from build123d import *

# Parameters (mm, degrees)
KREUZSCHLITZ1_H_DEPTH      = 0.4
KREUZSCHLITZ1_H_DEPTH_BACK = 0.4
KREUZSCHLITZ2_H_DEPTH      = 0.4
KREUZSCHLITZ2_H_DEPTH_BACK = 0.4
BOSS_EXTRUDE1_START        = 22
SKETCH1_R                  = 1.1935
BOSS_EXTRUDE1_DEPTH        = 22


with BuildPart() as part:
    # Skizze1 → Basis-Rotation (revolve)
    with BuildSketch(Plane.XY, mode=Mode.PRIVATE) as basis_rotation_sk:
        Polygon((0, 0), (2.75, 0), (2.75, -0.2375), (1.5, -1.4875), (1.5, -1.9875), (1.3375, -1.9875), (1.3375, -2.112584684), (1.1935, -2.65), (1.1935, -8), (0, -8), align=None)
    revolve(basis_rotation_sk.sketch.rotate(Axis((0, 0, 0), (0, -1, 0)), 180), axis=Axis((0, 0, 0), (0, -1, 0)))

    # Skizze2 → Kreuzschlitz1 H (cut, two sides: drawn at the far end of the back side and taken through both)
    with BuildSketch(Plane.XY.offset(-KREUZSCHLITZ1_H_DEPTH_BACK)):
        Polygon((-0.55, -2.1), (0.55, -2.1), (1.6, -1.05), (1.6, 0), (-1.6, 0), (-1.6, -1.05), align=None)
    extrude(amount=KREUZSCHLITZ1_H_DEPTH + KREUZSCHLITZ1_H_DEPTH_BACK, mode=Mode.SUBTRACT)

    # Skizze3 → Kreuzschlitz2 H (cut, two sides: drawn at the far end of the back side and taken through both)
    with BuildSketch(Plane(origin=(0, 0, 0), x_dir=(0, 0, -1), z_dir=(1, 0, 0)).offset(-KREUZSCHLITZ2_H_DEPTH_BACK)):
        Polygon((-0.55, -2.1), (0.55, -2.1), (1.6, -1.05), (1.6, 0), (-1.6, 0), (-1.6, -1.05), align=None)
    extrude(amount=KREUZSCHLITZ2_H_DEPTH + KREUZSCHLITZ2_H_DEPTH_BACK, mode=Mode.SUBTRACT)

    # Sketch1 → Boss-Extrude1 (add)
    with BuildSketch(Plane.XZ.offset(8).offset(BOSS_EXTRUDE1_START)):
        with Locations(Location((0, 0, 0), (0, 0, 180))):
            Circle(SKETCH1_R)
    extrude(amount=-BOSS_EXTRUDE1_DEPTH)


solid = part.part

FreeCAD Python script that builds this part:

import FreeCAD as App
import Part
import Sketcher
Q = App.Units.Quantity


def add_polygon(sketch, points):
    """Adds a closed chain of lines whose ends are joined by coincident constraints."""
    first, n = sketch.GeometryCount, len(points)
    for a, b in zip(points, points[1:] + points[:1]):
        sketch.addGeometry(Part.LineSegment(App.Vector(*a, 0), App.Vector(*b, 0)), False)
    for i in range(n):
        sketch.addConstraint(Sketcher.Constraint("Coincident", first + i, 2, first + (i + 1) % n, 1))

doc = App.newDocument("Part")
params = doc.addObject("Spreadsheet::Sheet", "Params")
for row, (alias, value) in enumerate([
    ("sketch1_height", "8 mm"),
    ("sketch1_height2", "0.5 mm"),
    ("sketch1_width", "2.75 mm"),
    ("sketch1_height3", "5.35 mm"),
    ("revolution_angle", "360 deg"),
    ("sketch2_width", "1.1 mm"),
    ("sketch2_width2", "3.2 mm"),
    ("sketch2_height", "1.05 mm"),
    ("pocket1_length", "0.4 mm"),
    ("pocket1_length2", "0.4 mm"),
    ("sketch3_height", "1.1 mm"),
    ("sketch3_height2", "3.2 mm"),
    ("sketch3_width", "1.05 mm"),
    ("pocket2_length", "0.4 mm"),
    ("pocket2_length2", "0.4 mm"),
    ("pad1_length", "22 mm"),
], start=1):
    params.set(f"A{row}", alias)
    params.set(f"B{row}", "=" + value)
    params.setAlias(f"B{row}", alias)

body = doc.addObject("PartDesign::Body", "Body")

sketch1 = doc.addObject("Sketcher::SketchObject", "Sketch")
body.addObject(sketch1)
sketch1.AttachmentSupport = (doc.XY_Plane, [""])
sketch1.MapMode = "FlatFace"
add_polygon(sketch1, [(2.75, 0), (0, 0), (0, -8), (1.19, -8), (1.19, -2.65), (1.34, -2.11), (1.34, -1.99), (1.5, -1.99), (1.5, -1.49), (2.75, -0.24)])
sketch1.addConstraint([
    Sketcher.Constraint("Horizontal", 0),
    Sketcher.Constraint("Vertical", 1),
    Sketcher.Constraint("Horizontal", 2),
    Sketcher.Constraint("Vertical", 3),
    Sketcher.Constraint("Vertical", 5),
    Sketcher.Constraint("Horizontal", 6),
    Sketcher.Constraint("Vertical", 7),
    Sketcher.Constraint("Vertical", 9),
    Sketcher.Constraint("Coincident", 0, 2, -1, 1),
    Sketcher.Constraint("DistanceY", 1, 2, 1, 1, 8.0),
    Sketcher.Constraint("Angle", 4, Q("75 deg")),
    Sketcher.Constraint("Angle", 8, Q("45 deg")),
    Sketcher.Constraint("DistanceY", 7, 1, 7, 2, 0.5),
    Sketcher.Constraint("DistanceX", 0, 2, 0, 1, 2.75),
    Sketcher.Constraint("DistanceY", 3, 1, 3, 2, 5.35),
    Sketcher.Constraint("DistanceX", -1, 1, 6, 2, 1.5),
    Sketcher.Constraint("DistanceX", 2, 1, 2, 2, 1.1935),
    Sketcher.Constraint("DistanceX", 6, 1, 6, 2, 0.1625),
    Sketcher.Constraint("DistanceY", 9, 1, 9, 2, 0.2375),
])
sketch1.setExpression("Constraints[19]", "Params.sketch1_height")
sketch1.setExpression("Constraints[22]", "Params.sketch1_height2")
sketch1.setExpression("Constraints[23]", "Params.sketch1_width")
sketch1.setExpression("Constraints[24]", "Params.sketch1_height3")
revolution = doc.addObject("PartDesign::Revolution", "Revolution")
body.addObject(revolution)
revolution.Profile = sketch1
revolution.ReferenceAxis = (sketch1, ["V_Axis"])
revolution.setExpression("Angle", "Params.revolution_angle")

sketch2 = doc.addObject("Sketcher::SketchObject", "Sketch001")
body.addObject(sketch2)
sketch2.AttachmentSupport = (doc.XY_Plane, [""])
sketch2.MapMode = "FlatFace"
add_polygon(sketch2, [(-0.6, -2.1), (0.6, -2.1), (1.6, -1.1), (1.6, 0), (-1.6, 0), (-1.6, -1.1)])
sketch2.addConstraint([
    Sketcher.Constraint("Horizontal", 0),
    Sketcher.Constraint("Vertical", 2),
    Sketcher.Constraint("Horizontal", 3),
    Sketcher.Constraint("Vertical", 4),
    Sketcher.Constraint("Symmetric", 2, 2, 3, 2, -1, 1),
    Sketcher.Constraint("Perpendicular", 1, 5),
    Sketcher.Constraint("Horizontal", 1, 2, 4, 2),
    Sketcher.Constraint("Equal", 1, 5),
    Sketcher.Constraint("DistanceX", 0, 1, 0, 2, 1.1),
    Sketcher.Constraint("DistanceX", 3, 2, 3, 1, 3.2),
    Sketcher.Constraint("DistanceY", 2, 1, 2, 2, 1.05),
])
sketch2.setExpression("Constraints[14]", "Params.sketch2_width")
sketch2.setExpression("Constraints[15]", "Params.sketch2_width2")
sketch2.setExpression("Constraints[16]", "Params.sketch2_height")
pocket1 = doc.addObject("PartDesign::Pocket", "Pocket")
body.addObject(pocket1)
pocket1.Profile = sketch2
pocket1.Type = "TwoLengths"
pocket1.setExpression("Length", "Params.pocket1_length")
pocket1.setExpression("Length2", "Params.pocket1_length2")
pocket1.Reversed = True

sketch3 = doc.addObject("Sketcher::SketchObject", "Sketch002")
body.addObject(sketch3)
sketch3.AttachmentSupport = (doc.YZ_Plane, [""])
sketch3.MapMode = "FlatFace"
add_polygon(sketch3, [(-2.1, 0.6), (-2.1, -0.6), (-1.1, -1.6), (0, -1.6), (0, 1.6), (-1.1, 1.6)])
sketch3.addConstraint([
    Sketcher.Constraint("Vertical", 0),
    Sketcher.Constraint("Horizontal", 2),
    Sketcher.Constraint("Vertical", 3),
    Sketcher.Constraint("Horizontal", 4),
    Sketcher.Constraint("Symmetric", 2, 2, 3, 2, -1, 1),
    Sketcher.Constraint("Perpendicular", 1, 5),
    Sketcher.Constraint("Vertical", 1, 2, 4, 2),
    Sketcher.Constraint("Equal", 1, 5),
    Sketcher.Constraint("DistanceY", 0, 2, 0, 1, 1.1),
    Sketcher.Constraint("DistanceY", 3, 1, 3, 2, 3.2),
    Sketcher.Constraint("DistanceX", 2, 1, 2, 2, 1.05),
])
sketch3.setExpression("Constraints[14]", "Params.sketch3_height")
sketch3.setExpression("Constraints[15]", "Params.sketch3_height2")
sketch3.setExpression("Constraints[16]", "Params.sketch3_width")
pocket2 = doc.addObject("PartDesign::Pocket", "Pocket001")
body.addObject(pocket2)
pocket2.Profile = sketch3
pocket2.Type = "TwoLengths"
pocket2.setExpression("Length", "Params.pocket2_length")
pocket2.setExpression("Length2", "Params.pocket2_length2")
pocket2.Reversed = True

sketch4 = doc.addObject("Sketcher::SketchObject", "Sketch003")
body.addObject(sketch4)
sketch4.AttachmentSupport = (doc.XZ_Plane, [""])
sketch4.MapMode = "FlatFace"
sketch4.AttachmentOffset = App.Placement(App.Vector(0, 0, 30), App.Rotation())
sketch4.addGeometry(Part.Circle(App.Vector(0, 0, 0), App.Vector(0, 0, 1), 1.2), False)
sketch4.addConstraint([
    Sketcher.Constraint("Coincident", 0, 3, -1, 1),
    Sketcher.Constraint("Diameter", 0, 2.387),
])
pad1 = doc.addObject("PartDesign::Pad", "Pad")
body.addObject(pad1)
pad1.Profile = sketch4
pad1.setExpression("Length", "Params.pad1_length")
pad1.Reversed = True

doc.recompute()
